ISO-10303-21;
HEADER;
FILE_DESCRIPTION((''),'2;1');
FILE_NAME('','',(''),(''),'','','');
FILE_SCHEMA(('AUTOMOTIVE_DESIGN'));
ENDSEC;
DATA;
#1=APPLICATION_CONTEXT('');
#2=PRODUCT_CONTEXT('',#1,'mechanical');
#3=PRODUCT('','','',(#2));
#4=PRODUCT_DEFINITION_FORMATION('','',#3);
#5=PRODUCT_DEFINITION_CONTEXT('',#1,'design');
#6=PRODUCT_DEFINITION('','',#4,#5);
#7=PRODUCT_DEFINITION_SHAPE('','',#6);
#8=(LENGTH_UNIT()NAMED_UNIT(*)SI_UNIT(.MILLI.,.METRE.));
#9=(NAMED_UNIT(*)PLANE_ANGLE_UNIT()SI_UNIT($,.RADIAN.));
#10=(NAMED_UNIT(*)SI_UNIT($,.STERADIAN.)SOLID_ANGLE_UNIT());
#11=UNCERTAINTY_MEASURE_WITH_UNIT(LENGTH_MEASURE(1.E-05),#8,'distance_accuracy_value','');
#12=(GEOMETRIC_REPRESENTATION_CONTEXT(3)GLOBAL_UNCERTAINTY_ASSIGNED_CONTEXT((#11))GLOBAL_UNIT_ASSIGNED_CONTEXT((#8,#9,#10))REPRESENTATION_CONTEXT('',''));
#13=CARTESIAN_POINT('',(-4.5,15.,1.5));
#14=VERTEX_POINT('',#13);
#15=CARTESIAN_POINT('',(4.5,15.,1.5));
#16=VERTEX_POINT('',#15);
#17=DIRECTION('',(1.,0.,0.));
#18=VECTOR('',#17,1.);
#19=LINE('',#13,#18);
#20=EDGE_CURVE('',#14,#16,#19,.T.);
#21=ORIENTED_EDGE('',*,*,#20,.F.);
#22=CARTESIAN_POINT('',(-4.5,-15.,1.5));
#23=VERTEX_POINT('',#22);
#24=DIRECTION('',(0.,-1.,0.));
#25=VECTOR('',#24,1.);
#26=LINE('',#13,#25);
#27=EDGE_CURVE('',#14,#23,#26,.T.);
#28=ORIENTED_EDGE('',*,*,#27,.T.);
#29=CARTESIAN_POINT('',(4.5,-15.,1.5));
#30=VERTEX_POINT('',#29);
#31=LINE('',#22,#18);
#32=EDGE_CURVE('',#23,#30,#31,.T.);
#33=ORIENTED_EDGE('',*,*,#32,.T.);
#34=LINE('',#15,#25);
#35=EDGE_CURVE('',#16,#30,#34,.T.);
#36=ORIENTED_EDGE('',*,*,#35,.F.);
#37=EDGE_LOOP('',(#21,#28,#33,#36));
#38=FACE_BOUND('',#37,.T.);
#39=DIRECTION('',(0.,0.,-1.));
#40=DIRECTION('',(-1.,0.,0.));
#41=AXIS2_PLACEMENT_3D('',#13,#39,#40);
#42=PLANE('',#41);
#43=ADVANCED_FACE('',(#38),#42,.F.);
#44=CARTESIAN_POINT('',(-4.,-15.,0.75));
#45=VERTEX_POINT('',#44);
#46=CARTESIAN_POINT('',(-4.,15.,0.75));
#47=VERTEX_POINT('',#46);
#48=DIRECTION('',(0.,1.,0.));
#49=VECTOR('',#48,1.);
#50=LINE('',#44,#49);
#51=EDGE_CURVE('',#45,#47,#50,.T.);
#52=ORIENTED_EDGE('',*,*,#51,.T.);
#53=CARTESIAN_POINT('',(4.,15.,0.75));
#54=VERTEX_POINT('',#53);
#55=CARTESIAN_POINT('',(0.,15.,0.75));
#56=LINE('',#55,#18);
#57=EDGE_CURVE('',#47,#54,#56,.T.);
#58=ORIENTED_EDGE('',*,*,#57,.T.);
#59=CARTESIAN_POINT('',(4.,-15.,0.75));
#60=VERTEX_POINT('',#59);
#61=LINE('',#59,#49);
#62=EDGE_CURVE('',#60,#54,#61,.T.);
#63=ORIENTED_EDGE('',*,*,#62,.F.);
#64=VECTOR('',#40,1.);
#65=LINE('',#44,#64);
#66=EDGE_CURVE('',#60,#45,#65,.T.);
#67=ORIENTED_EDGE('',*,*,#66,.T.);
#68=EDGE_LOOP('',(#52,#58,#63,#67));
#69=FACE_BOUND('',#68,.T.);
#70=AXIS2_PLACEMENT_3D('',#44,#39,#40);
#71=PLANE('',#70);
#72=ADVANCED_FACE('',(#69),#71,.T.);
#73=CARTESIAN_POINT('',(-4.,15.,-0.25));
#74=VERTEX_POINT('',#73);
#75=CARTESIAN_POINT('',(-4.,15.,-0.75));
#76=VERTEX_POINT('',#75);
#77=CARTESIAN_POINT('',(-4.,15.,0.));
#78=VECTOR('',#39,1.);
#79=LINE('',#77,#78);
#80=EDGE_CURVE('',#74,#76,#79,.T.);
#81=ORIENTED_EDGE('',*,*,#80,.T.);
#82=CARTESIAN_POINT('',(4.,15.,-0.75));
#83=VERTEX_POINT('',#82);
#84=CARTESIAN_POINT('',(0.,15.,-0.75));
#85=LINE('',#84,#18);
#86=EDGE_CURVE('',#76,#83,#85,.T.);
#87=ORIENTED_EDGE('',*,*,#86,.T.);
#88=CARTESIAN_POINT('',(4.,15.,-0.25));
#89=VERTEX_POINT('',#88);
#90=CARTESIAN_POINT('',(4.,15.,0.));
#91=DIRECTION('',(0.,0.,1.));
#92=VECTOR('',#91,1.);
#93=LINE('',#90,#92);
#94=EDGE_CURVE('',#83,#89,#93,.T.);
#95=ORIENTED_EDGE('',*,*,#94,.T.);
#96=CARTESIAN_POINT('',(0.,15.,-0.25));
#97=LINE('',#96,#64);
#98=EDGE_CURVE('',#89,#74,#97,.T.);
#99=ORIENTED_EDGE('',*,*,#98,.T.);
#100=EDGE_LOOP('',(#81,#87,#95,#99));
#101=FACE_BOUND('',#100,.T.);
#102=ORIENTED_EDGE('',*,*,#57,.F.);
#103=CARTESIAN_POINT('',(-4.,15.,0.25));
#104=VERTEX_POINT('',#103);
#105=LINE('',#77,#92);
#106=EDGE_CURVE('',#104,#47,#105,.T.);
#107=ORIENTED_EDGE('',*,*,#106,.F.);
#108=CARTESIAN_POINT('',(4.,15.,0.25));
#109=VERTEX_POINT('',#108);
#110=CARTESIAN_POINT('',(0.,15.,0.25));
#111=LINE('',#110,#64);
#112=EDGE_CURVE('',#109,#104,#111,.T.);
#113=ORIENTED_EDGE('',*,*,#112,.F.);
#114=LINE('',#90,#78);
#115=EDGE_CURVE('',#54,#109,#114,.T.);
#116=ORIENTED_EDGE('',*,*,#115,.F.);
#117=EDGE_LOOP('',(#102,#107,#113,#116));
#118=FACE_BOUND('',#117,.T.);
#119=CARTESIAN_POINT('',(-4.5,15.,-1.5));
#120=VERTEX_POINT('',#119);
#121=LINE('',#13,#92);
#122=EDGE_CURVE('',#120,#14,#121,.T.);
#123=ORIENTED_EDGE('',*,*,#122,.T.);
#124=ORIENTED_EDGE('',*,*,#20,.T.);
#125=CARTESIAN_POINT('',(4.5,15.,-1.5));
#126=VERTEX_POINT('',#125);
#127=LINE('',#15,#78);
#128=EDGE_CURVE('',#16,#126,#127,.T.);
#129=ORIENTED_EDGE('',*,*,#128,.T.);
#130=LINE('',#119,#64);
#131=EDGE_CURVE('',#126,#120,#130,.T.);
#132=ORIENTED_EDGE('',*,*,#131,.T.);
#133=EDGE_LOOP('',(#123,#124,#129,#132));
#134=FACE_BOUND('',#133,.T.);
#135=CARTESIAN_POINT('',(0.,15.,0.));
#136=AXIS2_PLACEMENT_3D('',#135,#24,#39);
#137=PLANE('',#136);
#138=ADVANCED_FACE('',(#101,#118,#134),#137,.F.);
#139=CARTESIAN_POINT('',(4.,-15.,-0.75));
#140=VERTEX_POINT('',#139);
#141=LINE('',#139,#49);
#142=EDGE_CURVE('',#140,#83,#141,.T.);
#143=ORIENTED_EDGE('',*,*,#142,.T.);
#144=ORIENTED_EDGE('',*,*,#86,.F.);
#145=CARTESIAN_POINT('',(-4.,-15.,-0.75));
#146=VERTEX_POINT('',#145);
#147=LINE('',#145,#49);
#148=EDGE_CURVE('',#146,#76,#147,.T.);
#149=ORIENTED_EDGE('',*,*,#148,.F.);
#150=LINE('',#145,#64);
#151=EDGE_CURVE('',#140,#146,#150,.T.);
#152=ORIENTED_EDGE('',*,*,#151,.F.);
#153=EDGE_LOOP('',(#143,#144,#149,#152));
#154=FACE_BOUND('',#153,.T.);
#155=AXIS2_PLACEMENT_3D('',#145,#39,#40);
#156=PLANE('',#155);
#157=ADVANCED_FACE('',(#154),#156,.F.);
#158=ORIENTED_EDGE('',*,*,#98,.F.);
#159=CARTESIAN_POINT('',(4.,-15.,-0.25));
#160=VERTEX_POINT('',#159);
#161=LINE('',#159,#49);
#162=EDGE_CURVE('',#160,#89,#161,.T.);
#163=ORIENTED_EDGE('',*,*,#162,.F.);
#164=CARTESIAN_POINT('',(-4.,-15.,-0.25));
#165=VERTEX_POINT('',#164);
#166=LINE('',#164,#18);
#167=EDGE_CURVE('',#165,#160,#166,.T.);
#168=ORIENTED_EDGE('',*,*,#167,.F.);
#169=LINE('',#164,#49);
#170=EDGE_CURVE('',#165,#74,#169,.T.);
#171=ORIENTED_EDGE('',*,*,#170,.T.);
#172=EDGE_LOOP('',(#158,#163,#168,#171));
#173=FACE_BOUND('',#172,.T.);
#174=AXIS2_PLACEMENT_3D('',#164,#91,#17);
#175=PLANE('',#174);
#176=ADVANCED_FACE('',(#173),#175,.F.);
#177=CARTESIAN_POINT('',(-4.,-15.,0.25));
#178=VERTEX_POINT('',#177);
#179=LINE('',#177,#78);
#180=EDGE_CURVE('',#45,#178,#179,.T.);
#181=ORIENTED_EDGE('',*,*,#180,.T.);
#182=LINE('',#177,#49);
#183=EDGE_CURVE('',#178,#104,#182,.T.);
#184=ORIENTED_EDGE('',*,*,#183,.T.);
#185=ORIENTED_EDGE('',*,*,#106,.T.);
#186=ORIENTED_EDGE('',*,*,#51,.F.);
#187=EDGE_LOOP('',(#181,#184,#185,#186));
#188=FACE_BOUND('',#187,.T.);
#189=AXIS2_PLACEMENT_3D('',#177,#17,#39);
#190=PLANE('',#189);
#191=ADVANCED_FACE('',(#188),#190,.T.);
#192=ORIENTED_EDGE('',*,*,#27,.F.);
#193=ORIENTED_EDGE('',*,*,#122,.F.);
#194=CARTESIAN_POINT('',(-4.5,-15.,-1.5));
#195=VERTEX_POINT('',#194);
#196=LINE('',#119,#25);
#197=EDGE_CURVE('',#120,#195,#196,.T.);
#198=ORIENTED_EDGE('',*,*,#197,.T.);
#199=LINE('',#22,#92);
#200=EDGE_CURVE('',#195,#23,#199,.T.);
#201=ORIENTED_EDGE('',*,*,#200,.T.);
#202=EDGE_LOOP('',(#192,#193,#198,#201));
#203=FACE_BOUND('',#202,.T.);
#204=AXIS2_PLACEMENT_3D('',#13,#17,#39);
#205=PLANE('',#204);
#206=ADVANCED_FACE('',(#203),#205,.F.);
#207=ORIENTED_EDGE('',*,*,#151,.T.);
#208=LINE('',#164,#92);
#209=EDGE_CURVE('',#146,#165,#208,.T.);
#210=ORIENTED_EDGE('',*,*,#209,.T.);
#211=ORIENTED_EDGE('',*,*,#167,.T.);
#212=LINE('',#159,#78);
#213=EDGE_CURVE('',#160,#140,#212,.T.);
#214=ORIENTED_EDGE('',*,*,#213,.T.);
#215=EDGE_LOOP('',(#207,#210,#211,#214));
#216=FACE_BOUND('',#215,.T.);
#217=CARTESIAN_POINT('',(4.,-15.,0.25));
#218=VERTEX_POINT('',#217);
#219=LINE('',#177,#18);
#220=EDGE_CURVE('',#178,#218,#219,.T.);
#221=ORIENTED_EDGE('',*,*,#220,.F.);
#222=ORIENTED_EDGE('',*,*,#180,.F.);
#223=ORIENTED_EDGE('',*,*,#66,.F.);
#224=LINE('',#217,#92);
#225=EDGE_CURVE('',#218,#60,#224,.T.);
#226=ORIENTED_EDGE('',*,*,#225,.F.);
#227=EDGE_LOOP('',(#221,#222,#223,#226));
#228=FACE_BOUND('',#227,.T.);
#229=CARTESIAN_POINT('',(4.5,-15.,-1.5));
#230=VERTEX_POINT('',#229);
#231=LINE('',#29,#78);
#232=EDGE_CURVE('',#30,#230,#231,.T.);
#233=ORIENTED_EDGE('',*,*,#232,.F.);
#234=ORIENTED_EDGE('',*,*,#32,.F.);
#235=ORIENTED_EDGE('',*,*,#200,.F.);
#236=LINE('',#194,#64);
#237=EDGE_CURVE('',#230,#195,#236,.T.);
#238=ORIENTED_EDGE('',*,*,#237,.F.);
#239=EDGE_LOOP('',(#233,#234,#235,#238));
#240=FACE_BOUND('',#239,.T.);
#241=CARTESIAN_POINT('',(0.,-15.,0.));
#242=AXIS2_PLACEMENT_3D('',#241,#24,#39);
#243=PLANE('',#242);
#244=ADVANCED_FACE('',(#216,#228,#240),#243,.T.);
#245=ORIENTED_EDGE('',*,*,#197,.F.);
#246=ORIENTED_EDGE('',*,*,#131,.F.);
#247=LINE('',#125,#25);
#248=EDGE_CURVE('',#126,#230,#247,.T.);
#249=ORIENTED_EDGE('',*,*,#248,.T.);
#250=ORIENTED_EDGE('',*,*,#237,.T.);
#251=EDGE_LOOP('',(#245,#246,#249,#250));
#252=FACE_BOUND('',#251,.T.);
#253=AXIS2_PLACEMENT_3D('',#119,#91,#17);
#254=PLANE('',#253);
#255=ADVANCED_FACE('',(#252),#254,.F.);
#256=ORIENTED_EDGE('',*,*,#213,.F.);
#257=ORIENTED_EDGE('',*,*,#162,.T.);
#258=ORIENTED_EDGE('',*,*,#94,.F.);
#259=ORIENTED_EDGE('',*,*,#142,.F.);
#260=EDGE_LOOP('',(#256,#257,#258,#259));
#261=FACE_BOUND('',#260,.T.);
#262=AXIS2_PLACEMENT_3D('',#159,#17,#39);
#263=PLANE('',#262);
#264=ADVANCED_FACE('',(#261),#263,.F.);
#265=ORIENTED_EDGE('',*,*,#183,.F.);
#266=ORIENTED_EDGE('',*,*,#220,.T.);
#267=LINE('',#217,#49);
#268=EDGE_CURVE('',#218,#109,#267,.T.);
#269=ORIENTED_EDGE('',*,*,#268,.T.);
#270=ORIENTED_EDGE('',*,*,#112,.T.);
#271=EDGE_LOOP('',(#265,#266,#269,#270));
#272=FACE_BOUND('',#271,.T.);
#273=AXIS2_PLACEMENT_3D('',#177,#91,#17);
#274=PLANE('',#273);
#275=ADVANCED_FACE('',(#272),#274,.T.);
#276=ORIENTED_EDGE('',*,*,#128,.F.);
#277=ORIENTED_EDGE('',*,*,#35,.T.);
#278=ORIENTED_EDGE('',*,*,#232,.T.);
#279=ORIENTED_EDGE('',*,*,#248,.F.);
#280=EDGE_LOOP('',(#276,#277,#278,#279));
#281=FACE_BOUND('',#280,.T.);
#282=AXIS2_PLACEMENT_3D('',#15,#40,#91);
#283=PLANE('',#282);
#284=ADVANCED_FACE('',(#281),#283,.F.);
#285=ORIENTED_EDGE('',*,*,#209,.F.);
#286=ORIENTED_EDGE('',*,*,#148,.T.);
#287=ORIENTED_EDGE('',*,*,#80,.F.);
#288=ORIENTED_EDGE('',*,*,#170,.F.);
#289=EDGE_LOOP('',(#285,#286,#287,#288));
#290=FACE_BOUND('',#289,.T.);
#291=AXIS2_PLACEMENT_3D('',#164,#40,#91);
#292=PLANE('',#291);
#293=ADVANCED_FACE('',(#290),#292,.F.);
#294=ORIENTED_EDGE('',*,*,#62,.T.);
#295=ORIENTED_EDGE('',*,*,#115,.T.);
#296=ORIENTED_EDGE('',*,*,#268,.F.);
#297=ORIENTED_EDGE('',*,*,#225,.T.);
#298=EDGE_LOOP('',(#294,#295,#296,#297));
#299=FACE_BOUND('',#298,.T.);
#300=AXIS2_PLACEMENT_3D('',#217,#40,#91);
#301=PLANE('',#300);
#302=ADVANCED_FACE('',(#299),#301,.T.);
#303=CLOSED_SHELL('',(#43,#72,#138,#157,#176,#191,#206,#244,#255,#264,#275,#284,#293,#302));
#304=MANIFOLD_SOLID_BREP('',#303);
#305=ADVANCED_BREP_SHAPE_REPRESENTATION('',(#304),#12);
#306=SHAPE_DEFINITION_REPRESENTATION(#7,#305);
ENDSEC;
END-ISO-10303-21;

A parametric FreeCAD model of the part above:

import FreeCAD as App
import Part
import Sketcher

doc = App.newDocument("Part")
body = doc.addObject("PartDesign::Body", "Body")

# Sketch on XZ plane
sketch1 = doc.addObject("Sketcher::SketchObject", "Sketch")
body.addObject(sketch1)
sketch1.AttachmentSupport = (doc.XZ_Plane, [""])
sketch1.MapMode = "FlatFace"
sketch1.addGeometry(Part.LineSegment(App.Vector(-4.5, -1.5, 0), App.Vector(-4.5, 1.5, 0)), False)
sketch1.addGeometry(Part.LineSegment(App.Vector(-4.5, 1.5, 0), App.Vector(4.5, 1.5, 0)), False)
sketch1.addGeometry(Part.LineSegment(App.Vector(4.5, 1.5, 0), App.Vector(4.5, -1.5, 0)), False)
sketch1.addGeometry(Part.LineSegment(App.Vector(4.5, -1.5, 0), App.Vector(-4.5, -1.5, 0)), False)
sketch1.addConstraint(Sketcher.Constraint("Coincident", 0, 2, 1, 1))
sketch1.addConstraint(Sketcher.Constraint("Coincident", 1, 2, 2, 1))
sketch1.addConstraint(Sketcher.Constraint("Coincident", 2, 2, 3, 1))
sketch1.addConstraint(Sketcher.Constraint("Coincident", 3, 2, 0, 1))
sketch1.addConstraint(Sketcher.Constraint("Vertical", 0))
sketch1.addConstraint(Sketcher.Constraint("Horizontal", 1))
sketch1.addConstraint(Sketcher.Constraint("Vertical", 2))
sketch1.addConstraint(Sketcher.Constraint("Horizontal", 3))
sketch1.addConstraint(Sketcher.Constraint("Symmetric", 0, 2, 2, 2, -1, 1))
sketch1.addConstraint(Sketcher.Constraint("DistanceX", 1, 1, 1, 2, 9.0))
sketch1.addConstraint(Sketcher.Constraint("DistanceY", 0, 1, 0, 2, 3.0))
pad1 = doc.addObject("PartDesign::Pad", "Pad")
body.addObject(pad1)
pad1.Profile = sketch1
pad1.Length = 30
pad1.Midplane = True

# Sketch on XZ plane
sketch2 = doc.addObject("Sketcher::SketchObject", "Sketch001")
body.addObject(sketch2)
sketch2.AttachmentSupport = (doc.XZ_Plane, [""])
sketch2.MapMode = "FlatFace"
sketch2.AttachmentOffset = App.Placement(App.Vector(0, 0, 16), App.Rotation())
sketch2.addGeometry(Part.LineSegment(App.Vector(-4, -0.8, 0), App.Vector(-4, -0.2, 0)), False)
sketch2.addGeometry(Part.LineSegment(App.Vector(-4, -0.2, 0), App.Vector(4, -0.2, 0)), False)
sketch2.addGeometry(Part.LineSegment(App.Vector(4, -0.2, 0), App.Vector(4, -0.8, 0)), False)
sketch2.addGeometry(Part.LineSegment(App.Vector(4, -0.8, 0), App.Vector(-4, -0.8, 0)), False)
sketch2.addConstraint(Sketcher.Constraint("Coincident", 0, 2, 1, 1))
sketch2.addConstraint(Sketcher.Constraint("Coincident", 1, 2, 2, 1))
sketch2.addConstraint(Sketcher.Constraint("Coincident", 2, 2, 3, 1))
sketch2.addConstraint(Sketcher.Constraint("Coincident", 3, 2, 0, 1))
sketch2.addConstraint(Sketcher.Constraint("Vertical", 0))
sketch2.addConstraint(Sketcher.Constraint("Horizontal", 1))
sketch2.addConstraint(Sketcher.Constraint("Vertical", 2))
sketch2.addConstraint(Sketcher.Constraint("Horizontal", 3))
sketch2.addConstraint(Sketcher.Constraint("DistanceX", 1, 1, 1, 2, 8.0))
sketch2.addConstraint(Sketcher.Constraint("DistanceY", 0, 1, 0, 2, 0.5))
sketch2.addConstraint(Sketcher.Constraint("DistanceX", 0, 2, -1, 1, 4.0))
sketch2.addConstraint(Sketcher.Constraint("DistanceY", 0, 2, -1, 1, 0.25))
pocket1 = doc.addObject("PartDesign::Pocket", "Pocket")
body.addObject(pocket1)
pocket1.Profile = sketch2
pocket1.Length = 32
doc.recompute()

mirrored = doc.addObject("PartDesign::Mirrored", "Mirrored")
body.addObject(mirrored)
mirrored.Originals = [pocket1]
mirrored.MirrorPlane = (doc.XY_Plane, [""])
body.Tip = mirrored

doc.recompute()
